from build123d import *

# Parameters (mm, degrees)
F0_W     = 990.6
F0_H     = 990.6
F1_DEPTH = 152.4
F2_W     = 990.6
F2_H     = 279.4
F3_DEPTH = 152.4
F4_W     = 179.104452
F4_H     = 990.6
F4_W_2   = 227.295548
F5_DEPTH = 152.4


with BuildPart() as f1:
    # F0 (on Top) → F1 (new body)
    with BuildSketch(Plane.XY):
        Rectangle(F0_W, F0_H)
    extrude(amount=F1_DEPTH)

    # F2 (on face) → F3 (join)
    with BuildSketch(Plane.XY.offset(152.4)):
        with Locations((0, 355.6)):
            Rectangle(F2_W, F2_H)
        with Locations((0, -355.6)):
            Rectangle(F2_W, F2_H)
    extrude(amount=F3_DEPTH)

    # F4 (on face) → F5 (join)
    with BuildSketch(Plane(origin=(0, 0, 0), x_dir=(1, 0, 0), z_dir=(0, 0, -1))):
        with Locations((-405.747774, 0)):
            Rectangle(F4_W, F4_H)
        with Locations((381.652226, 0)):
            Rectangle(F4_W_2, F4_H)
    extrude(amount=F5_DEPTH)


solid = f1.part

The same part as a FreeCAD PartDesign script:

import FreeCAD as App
import Part
import Sketcher
from FreeCAD import Vector
Q = App.Units.Quantity


def add_polygon(sketch, points):
    """Adds a closed chain of lines whose ends are joined by coincident constraints."""
    first, n = sketch.GeometryCount, len(points)
    for a, b in zip(points, points[1:] + points[:1]):
        sketch.addGeometry(Part.LineSegment(App.Vector(*a, 0), App.Vector(*b, 0)), False)
    for i in range(n):
        sketch.addConstraint(Sketcher.Constraint("Coincident", first + i, 2, first + (i + 1) % n, 1))

doc = App.newDocument("Part")
body = doc.addObject("PartDesign::Body", "Body")

sketch1 = doc.addObject("Sketcher::SketchObject", "Sketch")
body.addObject(sketch1)
sketch1.AttachmentSupport = (doc.XY_Plane, [""])
sketch1.MapMode = "FlatFace"
add_polygon(sketch1, [(-495, 495), (-495, -495), (495, -495), (495, 495)])
sketch1.addConstraint(Sketcher.Constraint("Vertical", 0))
sketch1.addConstraint(Sketcher.Constraint("Horizontal", 1))
sketch1.addConstraint(Sketcher.Constraint("Vertical", 2))
sketch1.addConstraint(Sketcher.Constraint("Horizontal", 3))
sketch1.addConstraint(Sketcher.Constraint("Symmetric", 0, 2, 2, 2, -1, 1))
sketch1.addConstraint(Sketcher.Constraint("Equal", 3, 0))
sketch1.addConstraint(Sketcher.Constraint("DistanceX", 1, 1, 1, 2, Q("39 in")))
pad1 = doc.addObject("PartDesign::Pad", "Pad")
body.addObject(pad1)
pad1.Profile = sketch1
pad1.Length = Q("6 in")

sketch2 = doc.addObject("Sketcher::SketchObject", "Sketch001")
body.addObject(sketch2)
sketch2.AttachmentSupport = (doc.XY_Plane, [""])
sketch2.MapMode = "FlatFace"
sketch2.AttachmentOffset = App.Placement(Vector(0, 0, 6 * 25.4), App.Rotation())
add_polygon(sketch2, [(-495, 495), (-495, 216), (495, 216), (495, 495)])
add_polygon(sketch2, [(-495, -216), (-495, -495), (495, -495), (495, -216)])
sketch2.addConstraint(Sketcher.Constraint("Vertical", 0))
sketch2.addConstraint(Sketcher.Constraint("Horizontal", 1))
sketch2.addConstraint(Sketcher.Constraint("Vertical", 2))
sketch2.addConstraint(Sketcher.Constraint("Horizontal", 3))
sketch2.addConstraint(Sketcher.Constraint("Vertical", 4))
sketch2.addConstraint(Sketcher.Constraint("Horizontal", 5))
sketch2.addConstraint(Sketcher.Constraint("Vertical", 6))
sketch2.addConstraint(Sketcher.Constraint("Horizontal", 7))
sketch2.addConstraint(Sketcher.Constraint("Symmetric", 2, 2, 4, 2, -1, 1))
sketch2.addConstraint(Sketcher.Constraint("Symmetric", 0, 2, 6, 2, -1, 1))
sketch2.addConstraint(Sketcher.Constraint("Vertical", 3, 2, 4, 2))
sketch2.addConstraint(Sketcher.Constraint("DistanceX", 1, 1, 1, 2, Q("39 in")))
sketch2.addConstraint(Sketcher.Constraint("DistanceY", 0, 2, 0, 1, Q("11 in")))
sketch2.addConstraint(Sketcher.Constraint("DistanceY", 4, 2, 0, 2, Q("28 in")))
pad2 = doc.addObject("PartDesign::Pad", "Pad001")
body.addObject(pad2)
pad2.Profile = sketch2
pad2.Length = Q("6 in")

sketch3 = doc.addObject("Sketcher::SketchObject", "Sketch002")
body.addObject(sketch3)
sketch3.AttachmentSupport = (doc.XY_Plane, [""])
sketch3.MapMode = "FlatFace"
add_polygon(sketch3, [(-495, -495), (-495, 495), (-316, 495), (-316, -495)])
add_polygon(sketch3, [(268, -495), (268, 495), (495, 495), (495, -495)])
sketch3.addConstraint(Sketcher.Constraint("Vertical", 0))
sketch3.addConstraint(Sketcher.Constraint("Horizontal", 1))
sketch3.addConstraint(Sketcher.Constraint("Vertical", 2))
sketch3.addConstraint(Sketcher.Constraint("Horizontal", 3))
sketch3.addConstraint(Sketcher.Constraint("Vertical", 4))
sketch3.addConstraint(Sketcher.Constraint("Horizontal", 5))
sketch3.addConstraint(Sketcher.Constraint("Vertical", 6))
sketch3.addConstraint(Sketcher.Constraint("Horizontal", 7))
sketch3.addConstraint(Sketcher.Constraint("Symmetric", 3, 2, 5, 2, -1, 1))
sketch3.addConstraint(Sketcher.Constraint("Horizontal", 1, 2, 4, 2))
sketch3.addConstraint(Sketcher.Constraint("Horizontal", 3, 2, 6, 2))
sketch3.addConstraint(Sketcher.Constraint("DistanceY", 0, 1, 0, 2, Q("39 in")))
sketch3.addConstraint(Sketcher.Constraint("DistanceX", 1, 2, 4, 2, Q("23 in")))
sketch3.addConstraint(Sketcher.Constraint("DistanceX", 0, 2, 5, 2, Q("39 in")))
sketch3.addConstraint(Sketcher.Constraint("DistanceX", 5, 1, 5, 2, 227.295548))
pad3 = doc.addObject("PartDesign::Pad", "Pad002")
body.addObject(pad3)
pad3.Profile = sketch3
pad3.Length = Q("6 in")
pad3.Reversed = True

doc.recompute()
